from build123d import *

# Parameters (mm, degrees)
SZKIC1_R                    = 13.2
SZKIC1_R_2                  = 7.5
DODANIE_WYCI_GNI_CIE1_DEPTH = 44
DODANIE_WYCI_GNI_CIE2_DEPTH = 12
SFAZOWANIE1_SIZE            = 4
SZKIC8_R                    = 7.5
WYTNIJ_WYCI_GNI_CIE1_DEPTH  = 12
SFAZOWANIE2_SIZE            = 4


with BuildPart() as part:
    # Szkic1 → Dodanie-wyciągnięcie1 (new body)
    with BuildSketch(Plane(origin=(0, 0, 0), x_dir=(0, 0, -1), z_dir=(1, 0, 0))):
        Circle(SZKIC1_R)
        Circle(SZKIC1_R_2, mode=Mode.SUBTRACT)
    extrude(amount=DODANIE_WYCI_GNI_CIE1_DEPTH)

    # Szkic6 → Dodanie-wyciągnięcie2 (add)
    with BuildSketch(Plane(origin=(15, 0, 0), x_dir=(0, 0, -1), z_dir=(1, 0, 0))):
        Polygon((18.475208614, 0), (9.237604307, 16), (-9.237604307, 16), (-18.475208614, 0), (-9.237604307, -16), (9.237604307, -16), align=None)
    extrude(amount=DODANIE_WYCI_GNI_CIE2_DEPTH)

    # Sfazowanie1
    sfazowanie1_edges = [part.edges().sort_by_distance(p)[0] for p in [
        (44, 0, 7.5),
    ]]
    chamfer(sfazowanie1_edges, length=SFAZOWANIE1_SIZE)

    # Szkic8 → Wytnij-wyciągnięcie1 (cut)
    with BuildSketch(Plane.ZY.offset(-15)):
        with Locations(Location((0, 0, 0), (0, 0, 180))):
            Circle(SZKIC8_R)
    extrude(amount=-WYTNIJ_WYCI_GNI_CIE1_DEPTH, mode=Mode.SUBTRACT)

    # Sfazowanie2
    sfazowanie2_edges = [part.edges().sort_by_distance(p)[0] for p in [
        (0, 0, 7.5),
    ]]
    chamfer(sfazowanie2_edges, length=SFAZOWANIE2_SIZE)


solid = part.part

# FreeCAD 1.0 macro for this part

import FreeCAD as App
import Part
import Sketcher
from FreeCAD import Vector
Q = App.Units.Quantity


def edges_at(feature, points):
    """Names of the edges that pass closest to the given points."""
    edges = feature.Shape.Edges
    near = lambda p: min(range(len(edges)), key=lambda i: edges[i].distToShape(Part.Vertex(*p))[0])
    return sorted({f"Edge{near(p) + 1}" for p in points})


def add_polygon(sketch, points):
    """Adds a closed chain of lines whose ends are joined by coincident constraints."""
    first, n = sketch.GeometryCount, len(points)
    for a, b in zip(points, points[1:] + points[:1]):
        sketch.addGeometry(Part.LineSegment(App.Vector(*a, 0), App.Vector(*b, 0)), False)
    for i in range(n):
        sketch.addConstraint(Sketcher.Constraint("Coincident", first + i, 2, first + (i + 1) % n, 1))

doc = App.newDocument("Part")
body = doc.addObject("PartDesign::Body", "Body")

sketch1 = doc.addObject("Sketcher::SketchObject", "Sketch")
body.addObject(sketch1)
sketch1.AttachmentSupport = (doc.YZ_Plane, [""])
sketch1.MapMode = "FlatFace"
sketch1.addGeometry([
    Part.Circle(Vector(0, 0, 0), Vector(0, 0, 1), 13),
    Part.Circle(Vector(0, 0, 0), Vector(0, 0, 1), 8),
], False)
sketch1.addConstraint([
    Sketcher.Constraint("Coincident", 0, 3, -1, 1),
    Sketcher.Constraint("Coincident", 1, 3, -1, 1),
    Sketcher.Constraint("Diameter", 1, 15.0),
    Sketcher.Constraint("Diameter", 0, 26.4),
])
pad1 = doc.addObject("PartDesign::Pad", "Pad")
body.addObject(pad1)
pad1.Profile = sketch1
pad1.Length = 44

sketch2 = doc.addObject("Sketcher::SketchObject", "Sketch001")
body.addObject(sketch2)
sketch2.AttachmentSupport = (doc.YZ_Plane, [""])
sketch2.MapMode = "FlatFace"
sketch2.AttachmentOffset = App.Placement(Vector(0, 0, 15), App.Rotation())
add_polygon(sketch2, [(0, -18), (16, -9), (16, 9), (0, 18), (-16, 9), (-16, -9)])
sketch2.addConstraint([
    Sketcher.Constraint("Vertical", 1),
    Sketcher.Constraint("Vertical", 4),
    Sketcher.Constraint("Symmetric", 0, 2, 3, 2, -1, 1),
    Sketcher.Constraint("Symmetric", 2, 2, 5, 2, -1, 1),
    Sketcher.Constraint("PointOnObject", 2, 2, -2),
    Sketcher.Constraint("Parallel", 2, 5),
    Sketcher.Constraint("Horizontal", 1, 2, 3, 2),
    Sketcher.Constraint("Angle", 0, Q("30 deg")),
    Sketcher.Constraint("DistanceX", -1, 1, 0, 2, 16.0),
    Sketcher.Constraint("DistanceY", 1, 1, 1, 2, 18.475209),
])
pad2 = doc.addObject("PartDesign::Pad", "Pad001")
body.addObject(pad2)
pad2.Profile = sketch2
pad2.Length = 12
doc.recompute()

chamfer = doc.addObject("PartDesign::Chamfer", "Chamfer")
body.addObject(chamfer)
chamfer.Base = (pad2, edges_at(pad2, [(44, 0, 7.5)]))
chamfer.Size = 4

sketch3 = doc.addObject("Sketcher::SketchObject", "Sketch002")
body.addObject(sketch3)
sketch3.AttachmentSupport = (doc.YZ_Plane, [""])
sketch3.MapMode = "FlatFace"
sketch3.AttachmentOffset = App.Placement(Vector(0, 0, 15), App.Rotation())
sketch3.addGeometry(Part.Circle(Vector(0, 0, 0), Vector(0, 0, 1), 8), False)
sketch3.addConstraint([
    Sketcher.Constraint("Coincident", 0, 3, -1, 1),
    Sketcher.Constraint("Diameter", 0, 15.0),
])
pocket1 = doc.addObject("PartDesign::Pocket", "Pocket")
body.addObject(pocket1)
pocket1.Profile = sketch3
pocket1.Length = 12
pocket1.Reversed = True
doc.recompute()

chamfer2 = doc.addObject("PartDesign::Chamfer", "Chamfer001")
body.addObject(chamfer2)
chamfer2.Base = (pocket1, edges_at(pocket1, [(0, 0, 7.5)]))
chamfer2.Size = 4

doc.recompute()
